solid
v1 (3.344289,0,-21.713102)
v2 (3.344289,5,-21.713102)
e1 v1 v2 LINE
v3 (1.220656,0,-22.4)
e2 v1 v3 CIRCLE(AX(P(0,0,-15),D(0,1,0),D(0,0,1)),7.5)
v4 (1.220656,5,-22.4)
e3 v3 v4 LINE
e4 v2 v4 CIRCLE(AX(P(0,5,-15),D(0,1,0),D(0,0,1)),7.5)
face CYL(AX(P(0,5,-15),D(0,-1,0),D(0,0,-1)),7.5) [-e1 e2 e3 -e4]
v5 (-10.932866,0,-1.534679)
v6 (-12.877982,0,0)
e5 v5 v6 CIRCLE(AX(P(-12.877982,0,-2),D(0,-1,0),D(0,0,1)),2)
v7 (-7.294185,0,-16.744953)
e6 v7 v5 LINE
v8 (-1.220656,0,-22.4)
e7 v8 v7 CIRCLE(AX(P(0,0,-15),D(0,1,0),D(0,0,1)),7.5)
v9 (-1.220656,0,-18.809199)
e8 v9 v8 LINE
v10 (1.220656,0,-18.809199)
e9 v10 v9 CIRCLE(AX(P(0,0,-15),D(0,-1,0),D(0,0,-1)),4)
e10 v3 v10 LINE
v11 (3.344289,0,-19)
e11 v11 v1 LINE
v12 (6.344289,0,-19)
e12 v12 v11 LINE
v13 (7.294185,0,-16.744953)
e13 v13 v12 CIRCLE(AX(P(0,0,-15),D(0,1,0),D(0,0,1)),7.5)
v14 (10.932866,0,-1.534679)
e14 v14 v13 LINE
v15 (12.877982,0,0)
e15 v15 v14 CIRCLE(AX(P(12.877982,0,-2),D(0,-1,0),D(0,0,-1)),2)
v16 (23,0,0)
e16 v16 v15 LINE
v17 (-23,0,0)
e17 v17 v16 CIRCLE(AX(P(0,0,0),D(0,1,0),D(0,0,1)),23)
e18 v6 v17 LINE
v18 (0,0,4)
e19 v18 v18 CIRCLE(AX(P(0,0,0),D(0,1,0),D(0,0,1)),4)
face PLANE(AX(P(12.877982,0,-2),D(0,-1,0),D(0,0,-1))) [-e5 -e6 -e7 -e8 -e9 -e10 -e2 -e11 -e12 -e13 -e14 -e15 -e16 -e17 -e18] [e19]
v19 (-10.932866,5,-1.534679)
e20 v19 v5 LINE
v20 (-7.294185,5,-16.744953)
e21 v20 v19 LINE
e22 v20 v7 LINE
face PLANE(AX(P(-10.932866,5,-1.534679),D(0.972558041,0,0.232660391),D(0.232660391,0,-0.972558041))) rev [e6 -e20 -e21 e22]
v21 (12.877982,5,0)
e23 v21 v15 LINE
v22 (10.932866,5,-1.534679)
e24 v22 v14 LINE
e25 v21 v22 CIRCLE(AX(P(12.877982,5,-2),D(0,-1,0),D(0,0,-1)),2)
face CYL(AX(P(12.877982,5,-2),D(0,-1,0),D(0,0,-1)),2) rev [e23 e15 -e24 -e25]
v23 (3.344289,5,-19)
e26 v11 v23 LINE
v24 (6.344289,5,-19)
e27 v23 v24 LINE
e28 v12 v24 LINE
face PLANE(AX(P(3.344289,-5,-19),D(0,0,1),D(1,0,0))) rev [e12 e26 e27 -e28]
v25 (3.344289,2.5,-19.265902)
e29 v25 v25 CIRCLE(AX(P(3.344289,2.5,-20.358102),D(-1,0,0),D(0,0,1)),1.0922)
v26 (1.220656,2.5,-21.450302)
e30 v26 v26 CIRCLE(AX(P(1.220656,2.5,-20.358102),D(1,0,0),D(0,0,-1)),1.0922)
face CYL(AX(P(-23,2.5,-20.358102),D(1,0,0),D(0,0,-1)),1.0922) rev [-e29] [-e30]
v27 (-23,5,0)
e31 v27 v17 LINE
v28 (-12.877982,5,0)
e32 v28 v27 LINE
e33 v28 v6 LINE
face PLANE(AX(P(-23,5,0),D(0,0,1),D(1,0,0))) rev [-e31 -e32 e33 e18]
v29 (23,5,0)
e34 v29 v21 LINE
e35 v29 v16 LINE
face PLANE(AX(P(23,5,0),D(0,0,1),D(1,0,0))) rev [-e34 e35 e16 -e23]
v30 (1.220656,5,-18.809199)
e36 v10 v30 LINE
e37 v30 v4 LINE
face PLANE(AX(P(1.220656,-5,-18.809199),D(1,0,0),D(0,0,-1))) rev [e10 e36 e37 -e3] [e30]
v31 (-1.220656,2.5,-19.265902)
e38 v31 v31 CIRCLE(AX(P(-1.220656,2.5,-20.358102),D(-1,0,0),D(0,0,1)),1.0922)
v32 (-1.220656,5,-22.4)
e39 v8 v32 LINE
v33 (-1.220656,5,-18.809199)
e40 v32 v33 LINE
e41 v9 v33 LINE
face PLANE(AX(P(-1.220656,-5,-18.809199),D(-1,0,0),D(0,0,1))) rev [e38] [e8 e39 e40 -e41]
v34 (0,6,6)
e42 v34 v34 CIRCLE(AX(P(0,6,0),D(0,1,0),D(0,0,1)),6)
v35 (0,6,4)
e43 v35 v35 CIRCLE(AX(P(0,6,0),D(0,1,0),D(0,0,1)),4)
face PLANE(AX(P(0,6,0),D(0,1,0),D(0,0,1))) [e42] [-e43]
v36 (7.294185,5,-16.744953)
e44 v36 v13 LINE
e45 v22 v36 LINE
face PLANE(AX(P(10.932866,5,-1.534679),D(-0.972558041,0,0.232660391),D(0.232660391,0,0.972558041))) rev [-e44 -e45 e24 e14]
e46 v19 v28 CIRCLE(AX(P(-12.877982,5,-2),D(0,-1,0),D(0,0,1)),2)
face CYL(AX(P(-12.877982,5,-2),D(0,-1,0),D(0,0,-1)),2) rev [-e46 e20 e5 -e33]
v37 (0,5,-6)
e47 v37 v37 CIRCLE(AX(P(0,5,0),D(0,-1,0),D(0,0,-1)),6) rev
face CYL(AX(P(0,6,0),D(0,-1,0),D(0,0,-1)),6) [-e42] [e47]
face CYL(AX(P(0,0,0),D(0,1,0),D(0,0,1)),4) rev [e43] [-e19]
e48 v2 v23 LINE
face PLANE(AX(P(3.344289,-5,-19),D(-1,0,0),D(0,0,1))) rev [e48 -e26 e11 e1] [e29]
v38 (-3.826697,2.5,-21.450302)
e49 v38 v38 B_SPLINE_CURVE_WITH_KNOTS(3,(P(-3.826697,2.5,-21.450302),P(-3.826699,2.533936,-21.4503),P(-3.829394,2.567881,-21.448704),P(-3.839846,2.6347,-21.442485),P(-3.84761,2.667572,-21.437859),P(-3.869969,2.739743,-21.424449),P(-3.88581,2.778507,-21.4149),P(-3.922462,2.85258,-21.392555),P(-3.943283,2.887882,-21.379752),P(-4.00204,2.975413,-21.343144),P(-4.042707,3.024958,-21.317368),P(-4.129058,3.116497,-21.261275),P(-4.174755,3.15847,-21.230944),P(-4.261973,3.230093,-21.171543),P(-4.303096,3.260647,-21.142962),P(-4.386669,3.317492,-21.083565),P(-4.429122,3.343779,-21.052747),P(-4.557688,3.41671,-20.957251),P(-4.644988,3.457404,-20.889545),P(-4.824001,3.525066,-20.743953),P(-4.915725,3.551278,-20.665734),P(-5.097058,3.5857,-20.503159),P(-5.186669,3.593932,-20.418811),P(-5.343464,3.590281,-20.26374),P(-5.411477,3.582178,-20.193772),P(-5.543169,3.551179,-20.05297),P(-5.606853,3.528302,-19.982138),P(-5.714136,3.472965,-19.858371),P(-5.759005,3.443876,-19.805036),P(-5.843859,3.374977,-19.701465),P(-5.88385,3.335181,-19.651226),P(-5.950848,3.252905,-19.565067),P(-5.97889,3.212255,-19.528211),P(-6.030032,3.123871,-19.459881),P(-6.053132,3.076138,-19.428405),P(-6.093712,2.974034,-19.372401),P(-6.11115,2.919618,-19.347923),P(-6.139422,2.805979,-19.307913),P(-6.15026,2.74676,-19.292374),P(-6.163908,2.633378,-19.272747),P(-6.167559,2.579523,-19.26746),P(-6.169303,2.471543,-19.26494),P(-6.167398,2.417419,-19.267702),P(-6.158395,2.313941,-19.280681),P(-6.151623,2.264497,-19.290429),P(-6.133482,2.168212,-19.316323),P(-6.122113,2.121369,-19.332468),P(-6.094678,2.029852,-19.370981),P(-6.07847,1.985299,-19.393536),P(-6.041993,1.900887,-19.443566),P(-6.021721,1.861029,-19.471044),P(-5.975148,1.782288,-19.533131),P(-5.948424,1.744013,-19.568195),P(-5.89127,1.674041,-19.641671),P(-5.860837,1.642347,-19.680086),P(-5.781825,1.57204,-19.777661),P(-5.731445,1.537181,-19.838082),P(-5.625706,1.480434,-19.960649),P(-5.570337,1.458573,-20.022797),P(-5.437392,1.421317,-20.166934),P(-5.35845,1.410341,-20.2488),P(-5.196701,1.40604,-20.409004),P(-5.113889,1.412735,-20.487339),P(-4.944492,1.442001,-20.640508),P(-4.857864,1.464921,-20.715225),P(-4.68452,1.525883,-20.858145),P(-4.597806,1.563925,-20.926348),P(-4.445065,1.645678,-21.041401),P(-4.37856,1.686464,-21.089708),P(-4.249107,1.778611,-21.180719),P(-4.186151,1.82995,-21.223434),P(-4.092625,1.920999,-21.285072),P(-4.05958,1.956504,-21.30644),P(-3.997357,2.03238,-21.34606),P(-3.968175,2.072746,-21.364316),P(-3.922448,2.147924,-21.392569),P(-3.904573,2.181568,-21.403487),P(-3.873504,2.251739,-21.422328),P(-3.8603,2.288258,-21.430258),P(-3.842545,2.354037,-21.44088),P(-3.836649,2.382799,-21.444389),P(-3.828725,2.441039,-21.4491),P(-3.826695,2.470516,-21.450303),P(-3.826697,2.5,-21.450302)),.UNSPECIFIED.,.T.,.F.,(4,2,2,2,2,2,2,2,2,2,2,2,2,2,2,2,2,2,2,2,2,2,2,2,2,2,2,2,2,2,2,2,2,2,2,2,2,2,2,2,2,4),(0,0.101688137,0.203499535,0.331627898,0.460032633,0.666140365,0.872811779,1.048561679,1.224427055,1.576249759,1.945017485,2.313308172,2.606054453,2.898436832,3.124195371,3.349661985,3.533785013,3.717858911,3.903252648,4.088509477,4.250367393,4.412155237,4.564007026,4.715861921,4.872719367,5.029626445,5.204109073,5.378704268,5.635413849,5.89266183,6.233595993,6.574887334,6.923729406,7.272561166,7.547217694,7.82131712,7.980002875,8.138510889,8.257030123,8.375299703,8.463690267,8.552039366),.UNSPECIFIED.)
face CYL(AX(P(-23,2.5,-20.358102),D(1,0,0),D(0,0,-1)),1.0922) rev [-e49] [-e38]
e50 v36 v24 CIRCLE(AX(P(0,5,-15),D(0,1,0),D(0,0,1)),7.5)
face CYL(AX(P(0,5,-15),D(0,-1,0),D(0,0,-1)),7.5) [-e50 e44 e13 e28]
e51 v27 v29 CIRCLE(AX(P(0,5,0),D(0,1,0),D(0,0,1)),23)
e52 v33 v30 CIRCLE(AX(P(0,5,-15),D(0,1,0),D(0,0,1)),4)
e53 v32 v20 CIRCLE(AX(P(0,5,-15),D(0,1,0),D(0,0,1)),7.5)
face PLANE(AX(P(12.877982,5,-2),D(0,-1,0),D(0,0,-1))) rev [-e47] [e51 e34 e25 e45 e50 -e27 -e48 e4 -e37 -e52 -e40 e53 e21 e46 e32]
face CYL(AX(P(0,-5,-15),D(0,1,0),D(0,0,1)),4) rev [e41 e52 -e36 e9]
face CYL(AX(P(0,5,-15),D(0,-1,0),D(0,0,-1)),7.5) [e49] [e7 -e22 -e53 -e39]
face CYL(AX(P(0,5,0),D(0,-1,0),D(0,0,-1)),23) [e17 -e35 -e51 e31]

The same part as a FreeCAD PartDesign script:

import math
import FreeCAD as App
import Part
import Sketcher

V = App.Vector
Q = App.Units.Quantity

doc = App.newDocument("Part")
body = doc.addObject("PartDesign::Body", "Body")

sketch1 = body.newObject("Sketcher::SketchObject", "Sketch")
sketch1.AttachmentSupport = (doc.getObject("XZ_Plane"), [""])
sketch1.MapMode = "FlatFace"
sketch1.addGeometry([
    Part.LineSegment(V(-12.877982, 0, 0), V(-23, 0, 0)),
    Part.ArcOfCircle(Part.Circle(V(0, 0, 0), V(0, 0, 1), 23), math.radians(0), math.radians(180)),
    Part.LineSegment(V(23, 0, 0), V(12.877982, 0, 0)),
    Part.ArcOfCircle(Part.Circle(V(12.877982, -2, 0), V(0, 0, 1), 2), math.radians(90), math.radians(166.546249)),
    Part.LineSegment(V(10.932866, -1.534679, 0), V(7.294185, -16.744953, 0)),
    Part.ArcOfCircle(Part.Circle(V(0, -15, 0), V(0, 0, 1), 7.5), math.radians(-166.546249), math.radians(-13.453751)),
    Part.LineSegment(V(-7.294185, -16.744953, 0), V(-10.932866, -1.534679, 0)),
    Part.ArcOfCircle(Part.Circle(V(-12.877982, -2, 0), V(0, 0, 1), 2), math.radians(13.453751), math.radians(90)),
], False)
sketch1.addConstraint([
    Sketcher.Constraint("Coincident", 0, 2, 1, 2),
    Sketcher.Constraint("Coincident", 1, 1, 2, 1),
    Sketcher.Constraint("Tangent", 2, 2, 3, 1),
    Sketcher.Constraint("Tangent", 3, 2, 4, 1),
    Sketcher.Constraint("Tangent", 4, 2, 5, 2),
    Sketcher.Constraint("Tangent", 5, 1, 6, 1),
    Sketcher.Constraint("Tangent", 6, 2, 7, 1),
    Sketcher.Constraint("Tangent", 7, 2, 0, 1),
    Sketcher.Constraint("Horizontal", 0),
    Sketcher.Constraint("Horizontal", 2),
    Sketcher.Constraint("Coincident", 1, 3, -1, 1),
    Sketcher.Constraint("Equal", 3, 7),
    Sketcher.Constraint("Symmetric", 2, 2, 7, 2, -1, 1),
    Sketcher.Constraint("Symmetric", 4, 2, 5, 1, -2),
    Sketcher.Constraint("Radius", 1, Q("23 mm")),
    Sketcher.Constraint("Radius", 3, Q("2 mm")),
    Sketcher.Constraint("Radius", 5, Q("7.5 mm")),
    Sketcher.Constraint("DistanceY", 5, 3, -1, 1, Q("15 mm")),
    Sketcher.Constraint("Distance", 4, Q("15.639451 mm")),
])
pad1 = body.newObject("PartDesign::Pad", "Pad")
pad1.Profile = sketch1
pad1.Length = 5
pad1.Reversed = True

sketch2 = body.newObject("Sketcher::SketchObject", "Sketch001")
sketch2.AttachmentSupport = (doc.getObject("XZ_Plane"), [""])
sketch2.MapMode = "FlatFace"
sketch2.AttachmentOffset = App.Placement(V(0, 0, -5), App.Rotation())
sketch2.addGeometry(Part.Circle(V(0, 0, 0), V(0, 0, 1), 6), False)
sketch2.addConstraint([
    Sketcher.Constraint("Coincident", 0, 3, -1, 1),
    Sketcher.Constraint("Diameter", 0, Q("12 mm")),
])
pad2 = body.newObject("PartDesign::Pad", "Pad001")
pad2.Profile = sketch2
pad2.Length = 1
pad2.Reversed = True

sketch3 = body.newObject("Sketcher::SketchObject", "Sketch002")
sketch3.AttachmentSupport = (doc.getObject("XZ_Plane"), [""])
sketch3.MapMode = "FlatFace"
sketch3.AttachmentOffset = App.Placement(V(0, 0, -6), App.Rotation())
sketch3.addGeometry(Part.Circle(V(0, 0, 0), V(0, 0, 1), 4), False)
sketch3.addConstraint([
    Sketcher.Constraint("Coincident", 0, 3, -1, 1),
    Sketcher.Constraint("Diameter", 0, Q("8 mm")),
])
pocket1 = body.newObject("PartDesign::Pocket", "Pocket")
pocket1.Profile = sketch3
pocket1.Type = "ThroughAll"
pocket1.Reversed = True

sketch4 = body.newObject("Sketcher::SketchObject", "Sketch003")
sketch4.AttachmentSupport = (doc.getObject("XZ_Plane"), [""])
sketch4.MapMode = "FlatFace"
sketch4.AttachmentOffset = App.Placement(V(0, 0, 5), App.Rotation())
sketch4.addGeometry([
    Part.LineSegment(V(-1.220656, -22.4, 0), V(-1.220656, -18.809199, 0)),
    Part.ArcOfCircle(Part.Circle(V(0, -15, 0), V(0, 0, 1), 4), math.radians(-72.231976), math.radians(252.231976)),
    Part.LineSegment(V(1.220656, -18.809199, 0), V(1.220656, -22.4, 0)),
    Part.ArcOfCircle(Part.Circle(V(0, -15, 0), V(0, 0, 1), 7.5), math.radians(-99.366789), math.radians(-80.633211)),
], False)
sketch4.addConstraint([
    Sketcher.Constraint("Coincident", 0, 2, 1, 2),
    Sketcher.Constraint("Coincident", 1, 1, 2, 1),
    Sketcher.Constraint("Coincident", 2, 2, 3, 2),
    Sketcher.Constraint("Coincident", 3, 1, 0, 1),
    Sketcher.Constraint("Vertical", 0),
    Sketcher.Constraint("Vertical", 2),
    Sketcher.Constraint("Coincident", 3, 3, 1, 3),
    Sketcher.Constraint("Symmetric", 0, 2, 1, 1, -2),
    Sketcher.Constraint("Radius", 1, Q("4 mm")),
    Sketcher.Constraint("Radius", 3, Q("7.5 mm")),
    Sketcher.Constraint("DistanceY", 1, 3, -1, 1, Q("15 mm")),
    Sketcher.Constraint("DistanceY", 2, 2, -1, 1, Q("22.4 mm")),
])
pocket2 = body.newObject("PartDesign::Pocket", "Pocket001")
pocket2.Profile = sketch4
pocket2.Length = 10

sketch5 = body.newObject("Sketcher::SketchObject", "Sketch004")
sketch5.AttachmentSupport = (doc.getObject("XZ_Plane"), [""])
sketch5.MapMode = "FlatFace"
sketch5.AttachmentOffset = App.Placement(V(0, 0, 5), App.Rotation())
sketch5.addGeometry([
    Part.LineSegment(V(3.344289, -19, 0), V(6.344289, -19, 0)),
    Part.ArcOfCircle(Part.Circle(V(0, -15, 0), V(0, 0, 1), 7.5), math.radians(-63.518734), math.radians(-32.230953)),
    Part.LineSegment(V(3.344289, -21.713102, 0), V(3.344289, -19, 0)),
], False)
sketch5.addConstraint([
    Sketcher.Constraint("Coincident", 0, 2, 1, 2),
    Sketcher.Constraint("Coincident", 1, 1, 2, 1),
    Sketcher.Constraint("Coincident", 2, 2, 0, 1),
    Sketcher.Constraint("Horizontal", 0),
    Sketcher.Constraint("Vertical", 2),
    Sketcher.Constraint("PointOnObject", 1, 3, -2),
    Sketcher.Constraint("Radius", 1, Q("7.5 mm")),
    Sketcher.Constraint("DistanceX", 0, 1, 0, 2, Q("3 mm")),
    Sketcher.Constraint("DistanceY", 1, 3, -1, 1, Q("15 mm")),
    Sketcher.Constraint("DistanceY", 0, 2, -1, 1, Q("19 mm")),
])
pocket3 = body.newObject("PartDesign::Pocket", "Pocket002")
pocket3.Profile = sketch5
pocket3.Length = 10

sketch6 = body.newObject("Sketcher::SketchObject", "Sketch005")
sketch6.AttachmentSupport = (doc.getObject("YZ_Plane"), [""])
sketch6.MapMode = "FlatFace"
sketch6.addGeometry(Part.Circle(V(2.5, -20.358102, 0), V(0, 0, 1), 1.0922), False)
sketch6.addConstraint([
    Sketcher.Constraint("Diameter", 0, Q("2.1844 mm")),
    Sketcher.Constraint("DistanceX", -1, 1, 0, 3, Q("2.5 mm")),
    Sketcher.Constraint("DistanceY", 0, 3, -1, 1, Q("20.358102 mm")),
])
pocket4 = body.newObject("PartDesign::Pocket", "Pocket003")
pocket4.Profile = sketch6
pocket4.Type = "ThroughAll"
pocket4.Midplane = True

doc.recompute()
